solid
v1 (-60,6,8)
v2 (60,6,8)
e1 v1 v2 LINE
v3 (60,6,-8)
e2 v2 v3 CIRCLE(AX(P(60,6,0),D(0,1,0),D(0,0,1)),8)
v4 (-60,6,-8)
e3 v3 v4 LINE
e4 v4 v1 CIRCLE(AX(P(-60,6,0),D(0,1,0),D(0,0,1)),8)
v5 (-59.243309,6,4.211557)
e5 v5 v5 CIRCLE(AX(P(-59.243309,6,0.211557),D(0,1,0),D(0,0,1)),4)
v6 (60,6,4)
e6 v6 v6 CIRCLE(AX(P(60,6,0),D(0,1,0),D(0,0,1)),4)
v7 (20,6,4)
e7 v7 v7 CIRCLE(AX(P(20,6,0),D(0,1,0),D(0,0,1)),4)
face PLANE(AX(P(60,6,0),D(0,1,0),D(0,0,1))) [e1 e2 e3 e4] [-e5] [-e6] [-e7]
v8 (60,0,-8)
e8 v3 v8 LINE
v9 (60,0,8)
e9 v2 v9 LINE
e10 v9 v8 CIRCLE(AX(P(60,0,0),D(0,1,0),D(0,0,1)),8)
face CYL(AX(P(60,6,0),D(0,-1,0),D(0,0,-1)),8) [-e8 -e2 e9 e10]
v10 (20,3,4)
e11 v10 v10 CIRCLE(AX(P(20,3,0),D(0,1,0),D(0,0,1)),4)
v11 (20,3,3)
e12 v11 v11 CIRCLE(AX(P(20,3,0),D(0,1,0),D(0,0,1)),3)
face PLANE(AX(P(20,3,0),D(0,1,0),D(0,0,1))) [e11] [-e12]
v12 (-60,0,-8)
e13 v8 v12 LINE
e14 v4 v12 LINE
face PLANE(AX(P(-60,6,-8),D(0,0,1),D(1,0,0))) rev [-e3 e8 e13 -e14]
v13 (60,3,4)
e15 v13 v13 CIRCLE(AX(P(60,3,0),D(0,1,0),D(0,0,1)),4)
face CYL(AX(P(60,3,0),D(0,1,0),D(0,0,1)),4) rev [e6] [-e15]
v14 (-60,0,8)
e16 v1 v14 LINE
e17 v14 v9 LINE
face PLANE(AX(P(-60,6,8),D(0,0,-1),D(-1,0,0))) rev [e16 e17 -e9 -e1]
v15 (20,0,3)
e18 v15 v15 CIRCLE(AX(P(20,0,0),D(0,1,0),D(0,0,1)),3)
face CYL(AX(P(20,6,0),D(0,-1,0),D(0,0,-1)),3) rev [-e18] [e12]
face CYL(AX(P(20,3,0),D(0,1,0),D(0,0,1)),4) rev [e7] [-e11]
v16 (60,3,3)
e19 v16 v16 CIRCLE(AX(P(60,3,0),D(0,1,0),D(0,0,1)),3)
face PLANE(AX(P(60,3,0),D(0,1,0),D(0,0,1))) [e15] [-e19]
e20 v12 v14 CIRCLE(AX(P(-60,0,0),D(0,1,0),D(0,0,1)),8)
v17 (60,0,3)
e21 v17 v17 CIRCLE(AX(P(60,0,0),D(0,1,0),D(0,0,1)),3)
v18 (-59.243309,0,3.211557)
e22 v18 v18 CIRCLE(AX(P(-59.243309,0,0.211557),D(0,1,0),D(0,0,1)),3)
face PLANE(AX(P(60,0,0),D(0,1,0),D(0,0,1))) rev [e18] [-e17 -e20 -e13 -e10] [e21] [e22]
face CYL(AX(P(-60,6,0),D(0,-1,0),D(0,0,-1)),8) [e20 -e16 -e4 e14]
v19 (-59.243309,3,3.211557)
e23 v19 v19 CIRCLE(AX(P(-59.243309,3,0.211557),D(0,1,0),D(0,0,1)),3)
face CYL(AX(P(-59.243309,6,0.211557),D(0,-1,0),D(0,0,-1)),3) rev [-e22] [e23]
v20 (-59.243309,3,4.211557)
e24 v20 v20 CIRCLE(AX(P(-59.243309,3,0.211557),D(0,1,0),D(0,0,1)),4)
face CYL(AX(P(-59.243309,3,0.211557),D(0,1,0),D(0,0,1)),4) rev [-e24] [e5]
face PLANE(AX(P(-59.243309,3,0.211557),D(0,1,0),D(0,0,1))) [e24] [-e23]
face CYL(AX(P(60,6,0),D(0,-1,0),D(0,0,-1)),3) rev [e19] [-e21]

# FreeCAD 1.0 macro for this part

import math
import FreeCAD as App
import Part
import Sketcher

V = App.Vector

doc = App.newDocument("Part")
params = doc.addObject("Spreadsheet::Sheet", "Params")
for row, (alias, value) in enumerate([
    ("sketch1_diameter", "6 mm"),
    ("sketch1_radius", "8 mm"),
    ("sketch1_width", "120 mm"),
    ("pad1_length", "6 mm"),
    ("sketch2_diameter", "8 mm"),
    ("pocket1_length", "3 mm"),
], start=1):
    params.set(f"A{row}", alias)
    params.set(f"B{row}", "=" + value)
    params.setAlias(f"B{row}", alias)

body = doc.addObject("PartDesign::Body", "Body")

# Sketch on XZ plane
sketch1 = body.newObject("Sketcher::SketchObject", "Sketch")
sketch1.AttachmentSupport = (doc.getObject("XZ_Plane"), [""])
sketch1.MapMode = "FlatFace"
sketch1.addGeometry(Part.LineSegment(V(-60, 8, 0), V(60, 8, 0)), False)
sketch1.addGeometry(Part.ArcOfCircle(Part.Circle(V(60, 0, 0), V(0, 0, 1), 8), math.radians(-90), math.radians(90)), False)
sketch1.addGeometry(Part.LineSegment(V(60, -8, 0), V(-60, -8, 0)), False)
sketch1.addGeometry(Part.ArcOfCircle(Part.Circle(V(-60, 0, 0), V(0, 0, 1), 8), math.radians(90), math.radians(270)), False)
sketch1.addGeometry(Part.Circle(V(-59.2, 0.2, 0), V(0, 0, 1), 3), False)
sketch1.addGeometry(Part.Circle(V(20, 0, 0), V(0, 0, 1), 3), False)
sketch1.addGeometry(Part.Circle(V(60, 0, 0), V(0, 0, 1), 3), False)
sketch1.addConstraint(Sketcher.Constraint("Tangent", 0, 2, 1, 2))
sketch1.addConstraint(Sketcher.Constraint("Tangent", 1, 1, 2, 1))
sketch1.addConstraint(Sketcher.Constraint("Tangent", 2, 2, 3, 2))
sketch1.addConstraint(Sketcher.Constraint("Tangent", 3, 1, 0, 1))
sketch1.addConstraint(Sketcher.Constraint("Horizontal", 0))
sketch1.addConstraint(Sketcher.Constraint("Horizontal", 2))
sketch1.addConstraint(Sketcher.Constraint("Coincident", 6, 3, 1, 3))
sketch1.addConstraint(Sketcher.Constraint("Equal", 4, 5))
sketch1.addConstraint(Sketcher.Constraint("Equal", 5, 6))
sketch1.addConstraint(Sketcher.Constraint("Symmetric", 1, 3, 3, 3, -1, 1))
sketch1.addConstraint(Sketcher.Constraint("PointOnObject", 5, 3, -1))
sketch1.addConstraint(Sketcher.Constraint("Diameter", 4, 6.0))
sketch1.addConstraint(Sketcher.Constraint("Radius", 1, 8.0))
sketch1.addConstraint(Sketcher.Constraint("DistanceX", 0, 1, 0, 2, 120.0))
sketch1.addConstraint(Sketcher.Constraint("DistanceX", -1, 1, 5, 3, 20.0))
sketch1.addConstraint(Sketcher.Constraint("DistanceX", 4, 3, -1, 1, 59.243309))
sketch1.addConstraint(Sketcher.Constraint("DistanceY", -1, 1, 4, 3, 0.211557))
sketch1.setExpression("Constraints[11]", "Params.sketch1_diameter")
sketch1.setExpression("Constraints[12]", "Params.sketch1_radius")
sketch1.setExpression("Constraints[13]", "Params.sketch1_width")
pad1 = body.newObject("PartDesign::Pad", "Pad")
pad1.Profile = sketch1
pad1.setExpression("Length", "Params.pad1_length")
pad1.Reversed = True

# Sketch on XZ plane
sketch2 = body.newObject("Sketcher::SketchObject", "Sketch001")
sketch2.AttachmentSupport = (doc.getObject("XZ_Plane"), [""])
sketch2.MapMode = "FlatFace"
sketch2.AttachmentOffset = App.Placement(V(0, 0, -6), App.Rotation())
sketch2.addGeometry(Part.Circle(V(-59.2, 0.2, 0), V(0, 0, 1), 4), False)
sketch2.addGeometry(Part.Circle(V(20, 0, 0), V(0, 0, 1), 4), False)
sketch2.addGeometry(Part.Circle(V(60, 0, 0), V(0, 0, 1), 4), False)
sketch2.addConstraint(Sketcher.Constraint("Equal", 0, 1))
sketch2.addConstraint(Sketcher.Constraint("Equal", 1, 2))
sketch2.addConstraint(Sketcher.Constraint("PointOnObject", 1, 3, -1))
sketch2.addConstraint(Sketcher.Constraint("PointOnObject", 2, 3, -1))
sketch2.addConstraint(Sketcher.Constraint("Diameter", 0, 8.0))
sketch2.addConstraint(Sketcher.Constraint("DistanceX", -1, 1, 1, 3, 20.0))
sketch2.addConstraint(Sketcher.Constraint("DistanceX", -1, 1, 2, 3, 60.0))
sketch2.addConstraint(Sketcher.Constraint("DistanceX", 0, 3, -1, 1, 59.243309))
sketch2.addConstraint(Sketcher.Constraint("DistanceY", -1, 1, 0, 3, 0.211557))
sketch2.setExpression("Constraints[4]", "Params.sketch2_diameter")
pocket1 = body.newObject("PartDesign::Pocket", "Pocket")
pocket1.Profile = sketch2
pocket1.setExpression("Length", "Params.pocket1_length")
pocket1.Reversed = True

doc.recompute()
